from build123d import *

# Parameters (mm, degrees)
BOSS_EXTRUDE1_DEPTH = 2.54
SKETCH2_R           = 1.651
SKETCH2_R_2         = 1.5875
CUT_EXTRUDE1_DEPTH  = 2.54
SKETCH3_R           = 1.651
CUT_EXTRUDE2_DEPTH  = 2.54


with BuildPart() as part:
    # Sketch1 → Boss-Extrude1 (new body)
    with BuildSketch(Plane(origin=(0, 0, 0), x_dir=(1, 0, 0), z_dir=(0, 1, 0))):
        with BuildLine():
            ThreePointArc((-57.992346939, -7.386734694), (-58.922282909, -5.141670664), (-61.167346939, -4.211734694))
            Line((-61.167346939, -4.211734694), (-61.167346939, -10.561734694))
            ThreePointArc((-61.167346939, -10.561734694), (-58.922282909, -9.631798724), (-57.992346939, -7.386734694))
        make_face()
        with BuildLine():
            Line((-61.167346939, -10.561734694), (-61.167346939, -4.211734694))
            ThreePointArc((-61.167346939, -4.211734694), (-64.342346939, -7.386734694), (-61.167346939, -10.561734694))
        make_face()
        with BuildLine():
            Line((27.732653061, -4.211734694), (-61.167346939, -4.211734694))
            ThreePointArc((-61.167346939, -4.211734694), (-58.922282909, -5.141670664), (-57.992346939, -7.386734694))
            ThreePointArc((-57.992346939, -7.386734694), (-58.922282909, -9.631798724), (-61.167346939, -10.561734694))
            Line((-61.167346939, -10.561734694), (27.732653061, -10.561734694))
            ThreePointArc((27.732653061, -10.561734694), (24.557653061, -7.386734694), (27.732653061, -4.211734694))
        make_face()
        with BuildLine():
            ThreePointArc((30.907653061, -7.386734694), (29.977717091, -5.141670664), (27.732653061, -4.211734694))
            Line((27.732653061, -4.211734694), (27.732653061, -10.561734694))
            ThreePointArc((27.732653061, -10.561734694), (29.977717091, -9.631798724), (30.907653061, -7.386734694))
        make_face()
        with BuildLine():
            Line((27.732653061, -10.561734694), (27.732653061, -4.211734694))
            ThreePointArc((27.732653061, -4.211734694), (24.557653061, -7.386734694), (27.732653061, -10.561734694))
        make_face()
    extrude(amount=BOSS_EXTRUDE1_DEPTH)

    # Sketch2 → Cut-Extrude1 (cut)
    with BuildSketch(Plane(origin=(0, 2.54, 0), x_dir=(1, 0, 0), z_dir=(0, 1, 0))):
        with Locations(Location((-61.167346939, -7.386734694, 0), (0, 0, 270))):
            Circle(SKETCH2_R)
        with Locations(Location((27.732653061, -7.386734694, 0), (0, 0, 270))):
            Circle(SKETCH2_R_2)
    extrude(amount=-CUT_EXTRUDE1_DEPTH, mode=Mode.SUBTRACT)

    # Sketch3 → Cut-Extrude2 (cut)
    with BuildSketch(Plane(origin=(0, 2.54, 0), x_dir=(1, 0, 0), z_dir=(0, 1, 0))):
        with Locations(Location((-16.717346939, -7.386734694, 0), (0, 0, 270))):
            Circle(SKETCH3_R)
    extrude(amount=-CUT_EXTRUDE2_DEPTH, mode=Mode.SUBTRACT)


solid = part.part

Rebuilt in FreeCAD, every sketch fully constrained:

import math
import FreeCAD as App
import Part
import Sketcher

V = App.Vector
Q = App.Units.Quantity

doc = App.newDocument("Part")
body = doc.addObject("PartDesign::Body", "Body")

sketch1 = body.newObject("Sketcher::SketchObject", "Sketch")
sketch1.AttachmentSupport = (doc.getObject("XZ_Plane"), [""])
sketch1.MapMode = "FlatFace"
sketch1.addGeometry(Part.ArcOfCircle(Part.Circle(V(27.7, 7.4, 0), V(0, 0, 1), 3.2), math.radians(-90), math.radians(0)), False)
sketch1.addGeometry(Part.LineSegment(V(27.7, 4.2, 0), V(-61.2, 4.2, 0)), False)
sketch1.addGeometry(Part.ArcOfCircle(Part.Circle(V(-61.2, 7.4, 0), V(0, 0, 1), 3.2), math.radians(90), math.radians(270)), False)
sketch1.addGeometry(Part.LineSegment(V(-61.2, 10.6, 0), V(27.7, 10.6, 0)), False)
sketch1.addGeometry(Part.ArcOfCircle(Part.Circle(V(27.7, 7.4, 0), V(0, 0, 1), 3.2), math.radians(0), math.radians(90)), False)
sketch1.addConstraint(Sketcher.Constraint("Tangent", 0, 1, 1, 1))
sketch1.addConstraint(Sketcher.Constraint("Tangent", 1, 2, 2, 2))
sketch1.addConstraint(Sketcher.Constraint("Tangent", 2, 1, 3, 1))
sketch1.addConstraint(Sketcher.Constraint("Tangent", 3, 2, 4, 2))
sketch1.addConstraint(Sketcher.Constraint("Tangent", 4, 1, 0, 2))
sketch1.addConstraint(Sketcher.Constraint("Horizontal", 1))
sketch1.addConstraint(Sketcher.Constraint("Horizontal", 3))
sketch1.addConstraint(Sketcher.Constraint("Equal", 0, 2))
sketch1.addConstraint(Sketcher.Constraint("Horizontal", 2, 3, 4, 1))
sketch1.addConstraint(Sketcher.Constraint("DistanceX", 1, 2, 1, 1, Q("3.5 in")))
sketch1.addConstraint(Sketcher.Constraint("Radius", 0, Q("0.125 in")))
sketch1.addConstraint(Sketcher.Constraint("DistanceX", -1, 1, 0, 3, Q("27.732653 mm")))
sketch1.addConstraint(Sketcher.Constraint("DistanceY", -1, 1, 0, 3, Q("7.386735 mm")))
pad1 = body.newObject("PartDesign::Pad", "Pad")
pad1.Profile = sketch1
pad1.Length = Q("0.1 in")
pad1.Reversed = True

sketch2 = body.newObject("Sketcher::SketchObject", "Sketch001")
sketch2.AttachmentSupport = (doc.getObject("XZ_Plane"), [""])
sketch2.MapMode = "FlatFace"
sketch2.AttachmentOffset = App.Placement(V(0, 0, -0.1 * 25.4), App.Rotation())
sketch2.addGeometry(Part.Circle(V(-61.2, 7.4, 0), V(0, 0, 1), 1.7), False)
sketch2.addGeometry(Part.Circle(V(27.7, 7.4, 0), V(0, 0, 1), 1.6), False)
sketch2.addConstraint(Sketcher.Constraint("Horizontal", 0, 3, 1, 3))
sketch2.addConstraint(Sketcher.Constraint("Diameter", 0, Q("0.13 in")))
sketch2.addConstraint(Sketcher.Constraint("Diameter", 1, Q("0.125 in")))
sketch2.addConstraint(Sketcher.Constraint("DistanceX", 0, 3, 1, 3, Q("3.5 in")))
sketch2.addConstraint(Sketcher.Constraint("DistanceX", 0, 3, -1, 1, Q("61.167347 mm")))
sketch2.addConstraint(Sketcher.Constraint("DistanceY", -1, 1, 0, 3, Q("7.386735 mm")))
pocket1 = body.newObject("PartDesign::Pocket", "Pocket")
pocket1.Profile = sketch2
pocket1.Length = Q("0.1 in")
pocket1.Reversed = True

sketch3 = body.newObject("Sketcher::SketchObject", "Sketch002")
sketch3.AttachmentSupport = (doc.getObject("XZ_Plane"), [""])
sketch3.MapMode = "FlatFace"
sketch3.AttachmentOffset = App.Placement(V(0, 0, -0.1 * 25.4), App.Rotation())
sketch3.addGeometry(Part.Circle(V(-16.7, 7.4, 0), V(0, 0, 1), 1.7), False)
sketch3.addConstraint(Sketcher.Constraint("Diameter", 0, Q("0.13 in")))
sketch3.addConstraint(Sketcher.Constraint("DistanceX", 0, 3, -1, 1, Q("16.717347 mm")))
sketch3.addConstraint(Sketcher.Constraint("DistanceY", -1, 1, 0, 3, Q("7.386735 mm")))
pocket2 = body.newObject("PartDesign::Pocket", "Pocket001")
pocket2.Profile = sketch3
pocket2.Length = Q("0.1 in")
pocket2.Reversed = True

doc.recompute()
